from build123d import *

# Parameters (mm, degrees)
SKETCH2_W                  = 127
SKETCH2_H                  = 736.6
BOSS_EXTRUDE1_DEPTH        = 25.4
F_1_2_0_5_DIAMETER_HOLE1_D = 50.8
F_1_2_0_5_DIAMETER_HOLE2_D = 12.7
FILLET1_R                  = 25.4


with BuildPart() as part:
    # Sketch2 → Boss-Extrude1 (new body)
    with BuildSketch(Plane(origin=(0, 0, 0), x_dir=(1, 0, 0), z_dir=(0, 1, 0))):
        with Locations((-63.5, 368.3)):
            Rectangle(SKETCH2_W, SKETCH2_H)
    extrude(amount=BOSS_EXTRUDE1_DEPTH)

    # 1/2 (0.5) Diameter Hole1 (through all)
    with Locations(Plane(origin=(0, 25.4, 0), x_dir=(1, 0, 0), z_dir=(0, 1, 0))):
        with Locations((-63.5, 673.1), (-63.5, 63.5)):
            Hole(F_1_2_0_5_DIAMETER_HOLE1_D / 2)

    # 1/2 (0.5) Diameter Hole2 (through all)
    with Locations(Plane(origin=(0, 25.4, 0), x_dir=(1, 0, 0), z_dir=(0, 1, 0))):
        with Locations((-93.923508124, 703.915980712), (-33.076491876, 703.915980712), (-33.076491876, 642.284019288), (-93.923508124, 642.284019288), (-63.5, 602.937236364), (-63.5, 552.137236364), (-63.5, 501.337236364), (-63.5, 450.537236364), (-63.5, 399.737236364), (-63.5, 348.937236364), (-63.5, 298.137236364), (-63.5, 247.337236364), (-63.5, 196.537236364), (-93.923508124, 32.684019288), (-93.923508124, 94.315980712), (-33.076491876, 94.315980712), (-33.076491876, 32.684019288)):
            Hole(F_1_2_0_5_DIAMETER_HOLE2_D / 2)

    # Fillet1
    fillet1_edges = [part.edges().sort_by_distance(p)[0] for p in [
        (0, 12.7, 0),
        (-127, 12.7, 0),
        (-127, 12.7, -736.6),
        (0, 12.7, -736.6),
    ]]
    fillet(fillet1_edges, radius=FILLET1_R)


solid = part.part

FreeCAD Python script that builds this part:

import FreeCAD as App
import Part
import Sketcher

V = App.Vector
Q = App.Units.Quantity


def edges_at(feature, points):
    """Names of the edges that pass closest to the given points."""
    edges = feature.Shape.Edges
    near = lambda p: min(range(len(edges)), key=lambda i: edges[i].distToShape(Part.Vertex(*p))[0])
    return sorted({f"Edge{near(p) + 1}" for p in points})


def add_polygon(sketch, points):
    """Adds a closed chain of lines whose ends are joined by coincident constraints."""
    first, n = sketch.GeometryCount, len(points)
    for a, b in zip(points, points[1:] + points[:1]):
        sketch.addGeometry(Part.LineSegment(App.Vector(*a, 0), App.Vector(*b, 0)), False)
    for i in range(n):
        sketch.addConstraint(Sketcher.Constraint("Coincident", first + i, 2, first + (i + 1) % n, 1))

doc = App.newDocument("Part")
params = doc.addObject("Spreadsheet::Sheet", "Params")
for row, (alias, value) in enumerate([
    ("sketch1_width", "5 in"),
    ("sketch1_height", "29 in"),
    ("pad1_length", "1 in"),
    ("sketch2_diameter", "2 in"),
    ("hole_diameter", "2 in"),
    ("sketch3_diameter", "0.5 in"),
    ("hole2_diameter", "0.5 in"),
    ("fillet_radius", "1 in"),
], start=1):
    params.set(f"A{row}", alias)
    params.set(f"B{row}", "=" + value)
    params.setAlias(f"B{row}", alias)

body = doc.addObject("PartDesign::Body", "Body")

# Sketch on XZ plane
sketch1 = doc.addObject("Sketcher::SketchObject", "Sketch")
body.addObject(sketch1)
sketch1.AttachmentSupport = (doc.XZ_Plane, [""])
sketch1.MapMode = "FlatFace"
add_polygon(sketch1, [(-127, -737), (-127, 0), (0, 0), (0, -737)])  # lines 0-3
sketch1.addConstraint(Sketcher.Constraint("Vertical", 0))
sketch1.addConstraint(Sketcher.Constraint("Horizontal", 1))
sketch1.addConstraint(Sketcher.Constraint("Vertical", 2))
sketch1.addConstraint(Sketcher.Constraint("Horizontal", 3))
sketch1.addConstraint(Sketcher.Constraint("Coincident", 1, 2, -1, 1))
sketch1.addConstraint(Sketcher.Constraint("DistanceX", 1, 1, 1, 2, Q("5 in")))
sketch1.addConstraint(Sketcher.Constraint("DistanceY", 0, 1, 0, 2, Q("29 in")))
sketch1.setExpression("Constraints[9]", "Params.sketch1_width")
sketch1.setExpression("Constraints[10]", "Params.sketch1_height")
pad1 = doc.addObject("PartDesign::Pad", "Pad")
body.addObject(pad1)
pad1.Profile = sketch1
pad1.setExpression("Length", "Params.pad1_length")
pad1.Reversed = True

# Sketch on XZ plane
sketch2 = doc.addObject("Sketcher::SketchObject", "Sketch001")
body.addObject(sketch2)
sketch2.AttachmentSupport = (doc.XZ_Plane, [""])
sketch2.MapMode = "FlatFace"
sketch2.AttachmentOffset = App.Placement(V(0, 0, -1 * 25.4), App.Rotation())
sketch2.addGeometry(Part.Circle(V(-64, -673, 0), V(0, 0, 1), 25), False)
sketch2.addGeometry(Part.Circle(V(-64, -64, 0), V(0, 0, 1), 25), False)
sketch2.addConstraint(Sketcher.Constraint("Equal", 0, 1))
sketch2.addConstraint(Sketcher.Constraint("Vertical", 0, 3, 1, 3))
sketch2.addConstraint(Sketcher.Constraint("Diameter", 0, Q("2 in")))
sketch2.addConstraint(Sketcher.Constraint("DistanceY", 0, 3, 1, 3, Q("24 in")))
sketch2.addConstraint(Sketcher.Constraint("DistanceX", 0, 3, -1, 1, Q("2.5 in")))
sketch2.addConstraint(Sketcher.Constraint("DistanceY", 0, 3, -1, 1, Q("26.5 in")))
sketch2.setExpression("Constraints[2]", "Params.sketch2_diameter")
doc.recompute()
hole = doc.addObject("PartDesign::Hole", "Hole")
body.addObject(hole)
hole.Profile = sketch2
hole.ThreadType = "None"
hole.setExpression("Diameter", "Params.hole_diameter")
hole.DepthType = "ThroughAll"
hole.Reversed = True

# Sketch on XZ plane
sketch3 = doc.addObject("Sketcher::SketchObject", "Sketch002")
body.addObject(sketch3)
sketch3.AttachmentSupport = (doc.XZ_Plane, [""])
sketch3.MapMode = "FlatFace"
sketch3.AttachmentOffset = App.Placement(V(0, 0, -1 * 25.4), App.Rotation())
sketch3.addGeometry(Part.Circle(V(-94, -704, 0), V(0, 0, 1), 6), False)
sketch3.addGeometry(Part.Circle(V(-33, -704, 0), V(0, 0, 1), 6), False)
sketch3.addGeometry(Part.Circle(V(-33, -642, 0), V(0, 0, 1), 6), False)
sketch3.addGeometry(Part.Circle(V(-94, -642, 0), V(0, 0, 1), 6), False)
sketch3.addGeometry(Part.Circle(V(-64, -603, 0), V(0, 0, 1), 6), False)
sketch3.addGeometry(Part.Circle(V(-64, -552, 0), V(0, 0, 1), 6), False)
sketch3.addGeometry(Part.Circle(V(-64, -501, 0), V(0, 0, 1), 6), False)
sketch3.addGeometry(Part.Circle(V(-64, -451, 0), V(0, 0, 1), 6), False)
sketch3.addGeometry(Part.Circle(V(-64, -400, 0), V(0, 0, 1), 6), False)
sketch3.addGeometry(Part.Circle(V(-64, -349, 0), V(0, 0, 1), 6), False)
sketch3.addGeometry(Part.Circle(V(-64, -298, 0), V(0, 0, 1), 6), False)
sketch3.addGeometry(Part.Circle(V(-64, -247, 0), V(0, 0, 1), 6), False)
sketch3.addGeometry(Part.Circle(V(-64, -197, 0), V(0, 0, 1), 6), False)
sketch3.addGeometry(Part.Circle(V(-94, -33, 0), V(0, 0, 1), 6), False)
sketch3.addGeometry(Part.Circle(V(-94, -94, 0), V(0, 0, 1), 6), False)
sketch3.addGeometry(Part.Circle(V(-33, -94, 0), V(0, 0, 1), 6), False)
sketch3.addGeometry(Part.Circle(V(-33, -33, 0), V(0, 0, 1), 6), False)
sketch3.addConstraint(Sketcher.Constraint("Equal", 0, 1))
sketch3.addConstraint(Sketcher.Constraint("Equal", 1, 2))
sketch3.addConstraint(Sketcher.Constraint("Equal", 2, 3))
sketch3.addConstraint(Sketcher.Constraint("Equal", 3, 4))
sketch3.addConstraint(Sketcher.Constraint("Equal", 4, 5))
sketch3.addConstraint(Sketcher.Constraint("Equal", 5, 6))
sketch3.addConstraint(Sketcher.Constraint("Equal", 6, 7))
sketch3.addConstraint(Sketcher.Constraint("Equal", 7, 8))
sketch3.addConstraint(Sketcher.Constraint("Equal", 8, 9))
sketch3.addConstraint(Sketcher.Constraint("Equal", 9, 10))
sketch3.addConstraint(Sketcher.Constraint("Equal", 10, 11))
sketch3.addConstraint(Sketcher.Constraint("Equal", 11, 12))
sketch3.addConstraint(Sketcher.Constraint("Equal", 12, 13))
sketch3.addConstraint(Sketcher.Constraint("Equal", 13, 14))
sketch3.addConstraint(Sketcher.Constraint("Equal", 14, 15))
sketch3.addConstraint(Sketcher.Constraint("Equal", 15, 16))
sketch3.addConstraint(Sketcher.Constraint("Horizontal", 0, 3, 1, 3))
sketch3.addConstraint(Sketcher.Constraint("Horizontal", 2, 3, 3, 3))
sketch3.addConstraint(Sketcher.Constraint("Horizontal", 14, 3, 15, 3))
sketch3.addConstraint(Sketcher.Constraint("Horizontal", 13, 3, 16, 3))
sketch3.addConstraint(Sketcher.Constraint("Vertical", 1, 3, 2, 3))
sketch3.addConstraint(Sketcher.Constraint("Vertical", 0, 3, 3, 3))
sketch3.addConstraint(Sketcher.Constraint("Vertical", 4, 3, 5, 3))
sketch3.addConstraint(Sketcher.Constraint("Vertical", 5, 3, 6, 3))
sketch3.addConstraint(Sketcher.Constraint("Vertical", 6, 3, 7, 3))
sketch3.addConstraint(Sketcher.Constraint("Vertical", 7, 3, 8, 3))
sketch3.addConstraint(Sketcher.Constraint("Vertical", 8, 3, 9, 3))
sketch3.addConstraint(Sketcher.Constraint("Vertical", 9, 3, 10, 3))
sketch3.addConstraint(Sketcher.Constraint("Vertical", 10, 3, 11, 3))
sketch3.addConstraint(Sketcher.Constraint("Vertical", 11, 3, 12, 3))
sketch3.addConstraint(Sketcher.Constraint("Vertical", 3, 3, 13, 3))
sketch3.addConstraint(Sketcher.Constraint("Vertical", 13, 3, 14, 3))
sketch3.addConstraint(Sketcher.Constraint("Vertical", 2, 3, 15, 3))
sketch3.addConstraint(Sketcher.Constraint("Vertical", 15, 3, 16, 3))
sketch3.addConstraint(Sketcher.Constraint("Diameter", 0, Q("0.5 in")))
sketch3.addConstraint(Sketcher.Constraint("DistanceY", 4, 3, 5, 3, Q("2 in")))
sketch3.addConstraint(Sketcher.Constraint("DistanceY", 5, 3, 6, 3, Q("2 in")))
sketch3.addConstraint(Sketcher.Constraint("DistanceY", 6, 3, 7, 3, Q("2 in")))
sketch3.addConstraint(Sketcher.Constraint("DistanceY", 7, 3, 8, 3, Q("2 in")))
sketch3.addConstraint(Sketcher.Constraint("DistanceY", 8, 3, 9, 3, Q("2 in")))
sketch3.addConstraint(Sketcher.Constraint("DistanceY", 9, 3, 10, 3, Q("2 in")))
sketch3.addConstraint(Sketcher.Constraint("DistanceY", 10, 3, 11, 3, Q("2 in")))
sketch3.addConstraint(Sketcher.Constraint("DistanceY", 11, 3, 12, 3, Q("2 in")))
sketch3.addConstraint(Sketcher.Constraint("DistanceX", 4, 3, -1, 1, Q("2.5 in")))
sketch3.addConstraint(Sketcher.Constraint("DistanceX", 0, 3, -1, 1, 93.923508))
sketch3.addConstraint(Sketcher.Constraint("DistanceY", 0, 3, -1, 1, 703.915981))
sketch3.addConstraint(Sketcher.Constraint("DistanceX", 1, 3, -1, 1, 33.076492))
sketch3.addConstraint(Sketcher.Constraint("DistanceY", 2, 3, -1, 1, 642.284019))
sketch3.addConstraint(Sketcher.Constraint("DistanceY", 13, 3, -1, 1, 32.684019))
sketch3.addConstraint(Sketcher.Constraint("DistanceY", 14, 3, -1, 1, 94.315981))
sketch3.addConstraint(Sketcher.Constraint("DistanceY", 4, 3, -1, 1, 602.937236))
sketch3.setExpression("Constraints[34]", "Params.sketch3_diameter")
doc.recompute()
hole2 = doc.addObject("PartDesign::Hole", "Hole001")
body.addObject(hole2)
hole2.Profile = sketch3
hole2.ThreadType = "None"
hole2.setExpression("Diameter", "Params.hole2_diameter")
hole2.DepthType = "ThroughAll"
hole2.Reversed = True
doc.recompute()

fillet = doc.addObject("PartDesign::Fillet", "Fillet")
body.addObject(fillet)
fillet.Base = (hole2, edges_at(hole2, [
    (0, 12.7, 0),
    (-127, 12.7, 0),
    (-127, 12.7, -736.6),
    (0, 12.7, -736.6),
]))
fillet.setExpression("Radius", "Params.fillet_radius")

doc.recompute()
